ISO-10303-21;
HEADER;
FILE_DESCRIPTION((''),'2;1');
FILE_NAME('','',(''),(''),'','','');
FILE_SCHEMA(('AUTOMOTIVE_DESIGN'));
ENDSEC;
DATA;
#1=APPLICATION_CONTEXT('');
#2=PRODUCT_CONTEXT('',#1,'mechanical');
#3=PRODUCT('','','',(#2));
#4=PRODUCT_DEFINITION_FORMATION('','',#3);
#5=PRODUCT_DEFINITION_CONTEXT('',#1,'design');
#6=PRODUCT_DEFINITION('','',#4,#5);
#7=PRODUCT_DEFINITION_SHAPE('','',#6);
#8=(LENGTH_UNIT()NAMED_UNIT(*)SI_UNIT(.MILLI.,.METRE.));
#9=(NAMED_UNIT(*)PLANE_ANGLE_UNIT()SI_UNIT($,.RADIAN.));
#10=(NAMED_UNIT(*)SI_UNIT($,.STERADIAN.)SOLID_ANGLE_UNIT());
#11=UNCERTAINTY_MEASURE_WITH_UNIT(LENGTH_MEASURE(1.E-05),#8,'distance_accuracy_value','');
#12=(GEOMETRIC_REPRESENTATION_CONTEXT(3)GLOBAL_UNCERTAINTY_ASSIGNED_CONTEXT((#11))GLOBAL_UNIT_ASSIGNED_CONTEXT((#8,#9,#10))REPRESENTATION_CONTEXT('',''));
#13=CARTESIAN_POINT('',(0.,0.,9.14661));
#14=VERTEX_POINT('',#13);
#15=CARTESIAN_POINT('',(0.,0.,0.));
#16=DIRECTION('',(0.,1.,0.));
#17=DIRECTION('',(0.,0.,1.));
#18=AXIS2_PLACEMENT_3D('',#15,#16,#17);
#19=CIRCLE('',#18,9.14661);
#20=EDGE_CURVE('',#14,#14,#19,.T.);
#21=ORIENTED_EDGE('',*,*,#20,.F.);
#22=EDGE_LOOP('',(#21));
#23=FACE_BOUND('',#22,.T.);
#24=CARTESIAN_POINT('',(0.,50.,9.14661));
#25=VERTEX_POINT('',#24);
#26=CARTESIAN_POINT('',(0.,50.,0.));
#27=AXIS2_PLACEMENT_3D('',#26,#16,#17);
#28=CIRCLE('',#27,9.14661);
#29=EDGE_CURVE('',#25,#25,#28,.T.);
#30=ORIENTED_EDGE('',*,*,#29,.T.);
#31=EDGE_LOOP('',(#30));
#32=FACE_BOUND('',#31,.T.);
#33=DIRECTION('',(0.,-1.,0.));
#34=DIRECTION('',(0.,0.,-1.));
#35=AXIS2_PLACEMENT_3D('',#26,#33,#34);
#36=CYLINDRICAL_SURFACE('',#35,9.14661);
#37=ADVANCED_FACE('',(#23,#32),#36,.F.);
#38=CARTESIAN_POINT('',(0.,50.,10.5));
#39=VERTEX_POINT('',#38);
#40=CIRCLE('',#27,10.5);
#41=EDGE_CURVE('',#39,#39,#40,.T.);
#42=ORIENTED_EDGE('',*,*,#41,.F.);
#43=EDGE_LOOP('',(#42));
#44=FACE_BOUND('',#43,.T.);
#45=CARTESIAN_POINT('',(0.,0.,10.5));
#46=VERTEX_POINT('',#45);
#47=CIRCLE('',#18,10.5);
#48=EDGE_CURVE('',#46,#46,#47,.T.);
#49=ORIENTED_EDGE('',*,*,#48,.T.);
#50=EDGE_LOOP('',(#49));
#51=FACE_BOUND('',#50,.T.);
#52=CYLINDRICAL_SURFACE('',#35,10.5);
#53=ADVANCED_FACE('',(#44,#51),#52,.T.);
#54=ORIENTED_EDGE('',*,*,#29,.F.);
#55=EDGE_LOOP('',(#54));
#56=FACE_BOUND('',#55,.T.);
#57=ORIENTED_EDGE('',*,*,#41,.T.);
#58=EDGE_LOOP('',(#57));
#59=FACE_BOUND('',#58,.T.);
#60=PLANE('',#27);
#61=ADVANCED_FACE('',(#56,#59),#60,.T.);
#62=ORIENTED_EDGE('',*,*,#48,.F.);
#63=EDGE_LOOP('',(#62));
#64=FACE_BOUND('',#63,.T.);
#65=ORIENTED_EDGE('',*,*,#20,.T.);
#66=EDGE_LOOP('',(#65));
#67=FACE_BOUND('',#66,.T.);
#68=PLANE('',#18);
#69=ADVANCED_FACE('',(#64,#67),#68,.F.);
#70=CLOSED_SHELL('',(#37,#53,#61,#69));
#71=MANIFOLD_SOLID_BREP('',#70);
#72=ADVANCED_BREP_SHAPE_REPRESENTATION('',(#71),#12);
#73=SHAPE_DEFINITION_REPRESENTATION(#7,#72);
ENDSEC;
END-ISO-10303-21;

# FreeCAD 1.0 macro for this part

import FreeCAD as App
import Part
import Sketcher

V = App.Vector

doc = App.newDocument("Part")
params = doc.addObject("Spreadsheet::Sheet", "Params")
for row, (alias, value) in enumerate([
    ("sketch1_diameter", "21 mm"),
    ("pad1_length", "50 mm"),
], start=1):
    params.set(f"A{row}", alias)
    params.set(f"B{row}", "=" + value)
    params.setAlias(f"B{row}", alias)

body = doc.addObject("PartDesign::Body", "Body")

sketch1 = body.newObject("Sketcher::SketchObject", "Sketch")
sketch1.AttachmentSupport = (doc.getObject("XZ_Plane"), [""])
sketch1.MapMode = "FlatFace"
sketch1.addGeometry([
    Part.Circle(V(0, 0, 0), V(0, 0, 1), 10.5),
    Part.Circle(V(0, 0, 0), V(0, 0, 1), 9.14661),
], False)
sketch1.addConstraint([
    Sketcher.Constraint("Coincident", 0, 3, -1, 1),
    Sketcher.Constraint("Coincident", 1, 3, -1, 1),
    Sketcher.Constraint("Diameter", 0, 21.0),
    Sketcher.Constraint("Diameter", 1, 18.29322),
])
sketch1.setExpression("Constraints[2]", "Params.sketch1_diameter")
pad1 = body.newObject("PartDesign::Pad", "Pad")
pad1.Profile = sketch1
pad1.setExpression("Length", "Params.pad1_length")
pad1.Reversed = True

doc.recompute()
